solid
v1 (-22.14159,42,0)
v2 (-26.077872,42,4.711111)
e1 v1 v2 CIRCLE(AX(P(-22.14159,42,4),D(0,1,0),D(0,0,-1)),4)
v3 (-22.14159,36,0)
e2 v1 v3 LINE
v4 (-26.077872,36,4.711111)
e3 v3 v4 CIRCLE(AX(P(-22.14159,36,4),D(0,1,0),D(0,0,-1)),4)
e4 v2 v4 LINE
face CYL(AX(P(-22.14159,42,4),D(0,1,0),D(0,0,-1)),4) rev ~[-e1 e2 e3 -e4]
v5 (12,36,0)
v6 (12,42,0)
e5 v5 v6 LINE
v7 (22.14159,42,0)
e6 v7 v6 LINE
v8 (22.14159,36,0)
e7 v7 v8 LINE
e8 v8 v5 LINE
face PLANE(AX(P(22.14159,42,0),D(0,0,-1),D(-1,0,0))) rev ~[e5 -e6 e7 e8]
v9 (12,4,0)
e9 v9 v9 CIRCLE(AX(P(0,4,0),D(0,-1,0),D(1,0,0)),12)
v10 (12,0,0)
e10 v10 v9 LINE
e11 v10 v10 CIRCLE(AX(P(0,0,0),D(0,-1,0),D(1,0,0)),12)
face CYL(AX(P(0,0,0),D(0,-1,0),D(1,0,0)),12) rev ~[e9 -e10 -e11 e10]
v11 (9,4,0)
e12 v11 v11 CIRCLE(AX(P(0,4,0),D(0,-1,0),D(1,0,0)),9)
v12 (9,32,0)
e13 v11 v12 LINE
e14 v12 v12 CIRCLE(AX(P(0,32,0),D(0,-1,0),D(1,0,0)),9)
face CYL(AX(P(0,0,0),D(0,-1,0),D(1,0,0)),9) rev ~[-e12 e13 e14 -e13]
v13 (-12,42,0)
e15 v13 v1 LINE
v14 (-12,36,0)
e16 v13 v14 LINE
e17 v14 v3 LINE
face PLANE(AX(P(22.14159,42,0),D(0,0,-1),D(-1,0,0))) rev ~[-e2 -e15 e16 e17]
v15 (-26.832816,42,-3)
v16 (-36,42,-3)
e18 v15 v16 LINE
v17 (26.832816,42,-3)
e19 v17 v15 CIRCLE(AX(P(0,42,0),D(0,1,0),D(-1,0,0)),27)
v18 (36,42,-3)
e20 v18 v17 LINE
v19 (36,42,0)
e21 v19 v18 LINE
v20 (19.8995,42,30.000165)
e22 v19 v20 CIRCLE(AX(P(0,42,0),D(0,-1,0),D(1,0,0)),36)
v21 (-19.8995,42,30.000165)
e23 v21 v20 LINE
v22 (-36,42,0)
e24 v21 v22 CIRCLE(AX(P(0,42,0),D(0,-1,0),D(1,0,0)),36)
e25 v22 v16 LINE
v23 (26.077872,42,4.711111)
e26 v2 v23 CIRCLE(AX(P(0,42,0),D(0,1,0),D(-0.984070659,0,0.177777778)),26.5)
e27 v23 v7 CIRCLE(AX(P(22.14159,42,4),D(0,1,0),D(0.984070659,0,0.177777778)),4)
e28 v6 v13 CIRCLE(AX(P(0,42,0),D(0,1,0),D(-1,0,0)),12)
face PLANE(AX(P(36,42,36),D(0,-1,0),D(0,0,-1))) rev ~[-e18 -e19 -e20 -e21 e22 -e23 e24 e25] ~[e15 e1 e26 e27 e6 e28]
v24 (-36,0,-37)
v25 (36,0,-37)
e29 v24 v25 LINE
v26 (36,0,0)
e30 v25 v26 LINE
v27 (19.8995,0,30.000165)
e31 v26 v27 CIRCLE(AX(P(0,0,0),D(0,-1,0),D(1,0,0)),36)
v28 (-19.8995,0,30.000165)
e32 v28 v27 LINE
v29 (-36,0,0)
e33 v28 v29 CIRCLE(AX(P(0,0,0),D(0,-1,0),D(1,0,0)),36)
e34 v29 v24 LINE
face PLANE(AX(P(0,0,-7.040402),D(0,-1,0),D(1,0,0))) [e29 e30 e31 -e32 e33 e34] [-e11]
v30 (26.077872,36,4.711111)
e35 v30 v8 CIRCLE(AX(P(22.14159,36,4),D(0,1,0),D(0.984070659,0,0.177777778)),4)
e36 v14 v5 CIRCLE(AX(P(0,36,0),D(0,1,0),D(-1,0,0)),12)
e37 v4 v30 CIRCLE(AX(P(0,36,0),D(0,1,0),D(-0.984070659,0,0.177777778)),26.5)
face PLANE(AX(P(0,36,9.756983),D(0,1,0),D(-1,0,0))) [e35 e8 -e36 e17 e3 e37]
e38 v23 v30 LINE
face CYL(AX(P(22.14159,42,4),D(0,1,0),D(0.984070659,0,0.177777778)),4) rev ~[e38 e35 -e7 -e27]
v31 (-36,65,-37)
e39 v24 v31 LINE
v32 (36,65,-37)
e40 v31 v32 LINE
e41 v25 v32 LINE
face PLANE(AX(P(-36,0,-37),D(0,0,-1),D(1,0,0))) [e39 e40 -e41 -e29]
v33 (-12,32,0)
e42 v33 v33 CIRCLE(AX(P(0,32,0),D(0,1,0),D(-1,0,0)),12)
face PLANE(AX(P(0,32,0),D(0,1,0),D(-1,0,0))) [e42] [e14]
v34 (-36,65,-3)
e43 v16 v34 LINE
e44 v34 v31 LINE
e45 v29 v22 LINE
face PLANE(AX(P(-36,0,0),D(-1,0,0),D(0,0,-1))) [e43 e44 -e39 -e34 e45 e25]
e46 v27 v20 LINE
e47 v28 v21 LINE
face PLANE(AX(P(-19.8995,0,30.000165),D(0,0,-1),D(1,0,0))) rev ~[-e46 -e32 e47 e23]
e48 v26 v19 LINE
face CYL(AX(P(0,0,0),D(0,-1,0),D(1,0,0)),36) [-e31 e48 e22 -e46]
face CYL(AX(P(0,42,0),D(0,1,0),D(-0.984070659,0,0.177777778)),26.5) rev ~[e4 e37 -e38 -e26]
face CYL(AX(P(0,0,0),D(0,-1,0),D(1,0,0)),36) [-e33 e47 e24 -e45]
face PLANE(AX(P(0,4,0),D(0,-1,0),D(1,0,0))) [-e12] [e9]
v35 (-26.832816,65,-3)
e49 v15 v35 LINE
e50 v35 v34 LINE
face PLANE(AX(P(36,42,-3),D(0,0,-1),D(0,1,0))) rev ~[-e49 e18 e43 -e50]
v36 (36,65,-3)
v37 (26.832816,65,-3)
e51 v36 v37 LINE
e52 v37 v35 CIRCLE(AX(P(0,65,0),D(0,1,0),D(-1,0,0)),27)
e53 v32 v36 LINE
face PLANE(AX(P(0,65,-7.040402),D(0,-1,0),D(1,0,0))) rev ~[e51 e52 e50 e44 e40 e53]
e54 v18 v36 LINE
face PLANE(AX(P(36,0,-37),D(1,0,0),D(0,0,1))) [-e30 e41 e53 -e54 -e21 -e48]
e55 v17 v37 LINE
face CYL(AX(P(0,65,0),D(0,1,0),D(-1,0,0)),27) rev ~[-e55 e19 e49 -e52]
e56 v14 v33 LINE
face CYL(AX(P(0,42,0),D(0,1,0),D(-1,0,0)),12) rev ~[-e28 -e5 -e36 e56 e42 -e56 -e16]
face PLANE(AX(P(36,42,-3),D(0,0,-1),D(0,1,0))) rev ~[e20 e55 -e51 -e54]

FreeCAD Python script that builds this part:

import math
import FreeCAD as App
import Part
import Sketcher
from FreeCAD import Vector
Q = App.Units.Quantity


def add_polygon(sketch, points):
    """Adds a closed chain of lines whose ends are joined by coincident constraints."""
    first, n = sketch.GeometryCount, len(points)
    for a, b in zip(points, points[1:] + points[:1]):
        sketch.addGeometry(Part.LineSegment(App.Vector(*a, 0), App.Vector(*b, 0)), False)
    for i in range(n):
        sketch.addConstraint(Sketcher.Constraint("Coincident", first + i, 2, first + (i + 1) % n, 1))

doc = App.newDocument("Part")
body = doc.addObject("PartDesign::Body", "Body")

# Sketch on XZ plane
sketch1 = body.newObject("Sketcher::SketchObject", "Sketch")
sketch1.AttachmentSupport = (doc.getObject("XZ_Plane"), [""])
sketch1.MapMode = "FlatFace"
sketch1.addGeometry(Part.LineSegment(Vector(36, -37, 0), Vector(36, 0, 0)), False)
sketch1.addGeometry(Part.ArcOfCircle(Part.Circle(Vector(0, 0, 0), Vector(0, 0, 1), 36), math.radians(0), math.radians(180)), False)
sketch1.addGeometry(Part.LineSegment(Vector(-36, 0, 0), Vector(-36, -37, 0)), False)
sketch1.addGeometry(Part.LineSegment(Vector(-36, -37, 0), Vector(36, -37, 0)), False)
sketch1.addGeometry(Part.Circle(Vector(0, 0, 0), Vector(0, 0, 1), 9), False)
sketch1.addConstraint(Sketcher.Constraint("Tangent", 0, 2, 1, 1))
sketch1.addConstraint(Sketcher.Constraint("Tangent", 1, 2, 2, 1))
sketch1.addConstraint(Sketcher.Constraint("Coincident", 2, 2, 3, 1))
sketch1.addConstraint(Sketcher.Constraint("Coincident", 3, 2, 0, 1))
sketch1.addConstraint(Sketcher.Constraint("Vertical", 0))
sketch1.addConstraint(Sketcher.Constraint("Vertical", 2))
sketch1.addConstraint(Sketcher.Constraint("Horizontal", 3))
sketch1.addConstraint(Sketcher.Constraint("Coincident", 1, 3, -1, 1))
sketch1.addConstraint(Sketcher.Constraint("Coincident", 4, 3, -1, 1))
sketch1.addConstraint(Sketcher.Constraint("Diameter", 4, Q("18 mm")))
sketch1.addConstraint(Sketcher.Constraint("Radius", 1, Q("36 mm")))
sketch1.addConstraint(Sketcher.Constraint("DistanceY", 0, 1, 0, 2, Q("37 mm")))
pad1 = body.newObject("PartDesign::Pad", "Pad")
pad1.Profile = sketch1
pad1.Length = 65
pad1.Reversed = True

# Sketch on YZ plane
sketch2 = body.newObject("Sketcher::SketchObject", "Sketch001")
sketch2.AttachmentSupport = (doc.getObject("YZ_Plane"), [""])
sketch2.MapMode = "FlatFace"
sketch2.AttachmentOffset = App.Placement(Vector(0, 0, 36), App.Rotation())
add_polygon(sketch2, [(42, 36), (42, -3), (65, -3), (65, 36)])  # lines 0-3
sketch2.addConstraint(Sketcher.Constraint("Vertical", 0))
sketch2.addConstraint(Sketcher.Constraint("Horizontal", 1))
sketch2.addConstraint(Sketcher.Constraint("Vertical", 2))
sketch2.addConstraint(Sketcher.Constraint("Horizontal", 3))
sketch2.addConstraint(Sketcher.Constraint("DistanceX", 1, 1, 1, 2, Q("23 mm")))
sketch2.addConstraint(Sketcher.Constraint("DistanceY", 0, 2, 0, 1, Q("39 mm")))
sketch2.addConstraint(Sketcher.Constraint("DistanceX", -1, 1, 0, 2, Q("42 mm")))
sketch2.addConstraint(Sketcher.Constraint("DistanceY", 0, 2, -1, 1, Q("3 mm")))
pocket1 = body.newObject("PartDesign::Pocket", "Pocket")
pocket1.Profile = sketch2
pocket1.Length = 72

# Sketch on XZ plane
sketch3 = body.newObject("Sketcher::SketchObject", "Sketch002")
sketch3.AttachmentSupport = (doc.getObject("XZ_Plane"), [""])
sketch3.MapMode = "FlatFace"
sketch3.addGeometry(Part.Circle(Vector(0, 0, 0), Vector(0, 0, 1), 12), False)
sketch3.addConstraint(Sketcher.Constraint("Coincident", 0, 3, -1, 1))
sketch3.addConstraint(Sketcher.Constraint("Diameter", 0, Q("24 mm")))
pocket2 = body.newObject("PartDesign::Pocket", "Pocket001")
pocket2.Profile = sketch3
pocket2.Length = 4

# Sketch on XZ plane
sketch4 = body.newObject("Sketcher::SketchObject", "Sketch003")
sketch4.AttachmentSupport = (doc.getObject("XZ_Plane"), [""])
sketch4.MapMode = "FlatFace"
sketch4.AttachmentOffset = App.Placement(Vector(0, 0, -65), App.Rotation())
sketch4.addGeometry(Part.Circle(Vector(0, 0, 0), Vector(0, 0, 1), 27), False)
sketch4.addConstraint(Sketcher.Constraint("Coincident", 0, 3, -1, 1))
sketch4.addConstraint(Sketcher.Constraint("Diameter", 0, Q("54 mm")))
pocket3 = body.newObject("PartDesign::Pocket", "Pocket002")
pocket3.Profile = sketch4
pocket3.Length = 23
pocket3.Reversed = True

# Sketch on XZ plane
sketch5 = body.newObject("Sketcher::SketchObject", "Sketch004")
sketch5.AttachmentSupport = (doc.getObject("XZ_Plane"), [""])
sketch5.MapMode = "FlatFace"
sketch5.AttachmentOffset = App.Placement(Vector(0, 0, -42), App.Rotation())
sketch5.addGeometry(Part.Circle(Vector(0, 0, 0), Vector(0, 0, 1), 12), False)
sketch5.addConstraint(Sketcher.Constraint("Coincident", 0, 3, -1, 1))
sketch5.addConstraint(Sketcher.Constraint("Diameter", 0, Q("24 mm")))
pocket4 = body.newObject("PartDesign::Pocket", "Pocket003")
pocket4.Profile = sketch5
pocket4.Length = 10
pocket4.Reversed = True

# Sketch on XZ plane
sketch6 = body.newObject("Sketcher::SketchObject", "Sketch005")
sketch6.AttachmentSupport = (doc.getObject("XZ_Plane"), [""])
sketch6.MapMode = "FlatFace"
sketch6.AttachmentOffset = App.Placement(Vector(0, 0, -42), App.Rotation())
sketch6.addGeometry(Part.ArcOfCircle(Part.Circle(Vector(-22.1, 4, 0), Vector(0, 0, 1), 4), math.radians(170), math.radians(270)), False)
sketch6.addGeometry(Part.ArcOfCircle(Part.Circle(Vector(0, 0, 0), Vector(0, 0, 1), 26.5), math.radians(10), math.radians(170)), False)
sketch6.addGeometry(Part.ArcOfCircle(Part.Circle(Vector(22.1, 4, 0), Vector(0, 0, 1), 4), math.radians(-90), math.radians(10)), False)
sketch6.addGeometry(Part.LineSegment(Vector(22.1, 0, 0), Vector(-22.1, 0, 0)), False)
sketch6.addConstraint(Sketcher.Constraint("Tangent", 0, 1, 1, 2))
sketch6.addConstraint(Sketcher.Constraint("Tangent", 1, 1, 2, 2))
sketch6.addConstraint(Sketcher.Constraint("Tangent", 2, 1, 3, 1))
sketch6.addConstraint(Sketcher.Constraint("Tangent", 3, 2, 0, 2))
sketch6.addConstraint(Sketcher.Constraint("Horizontal", 3))
sketch6.addConstraint(Sketcher.Constraint("Coincident", 1, 3, -1, 1))
sketch6.addConstraint(Sketcher.Constraint("Equal", 0, 2))
sketch6.addConstraint(Sketcher.Constraint("PointOnObject", 2, 1, -1))
sketch6.addConstraint(Sketcher.Constraint("Radius", 0, Q("4 mm")))
sketch6.addConstraint(Sketcher.Constraint("Radius", 1, Q("26.5 mm")))
pocket5 = body.newObject("PartDesign::Pocket", "Pocket004")
pocket5.Profile = sketch6
pocket5.Length = 6
pocket5.Reversed = True

# Sketch on XZ plane
sketch7 = body.newObject("Sketcher::SketchObject", "Sketch006")
sketch7.AttachmentSupport = (doc.getObject("XZ_Plane"), [""])
sketch7.MapMode = "FlatFace"
sketch7.addGeometry(Part.ArcOfCircle(Part.Circle(Vector(0, 0, 0), Vector(0, 0, 1), 36), math.radians(56), math.radians(124)), False)
sketch7.addGeometry(Part.LineSegment(Vector(-20, 30, 0), Vector(20, 30, 0)), False)
sketch7.addConstraint(Sketcher.Constraint("Coincident", 0, 1, 1, 2))
sketch7.addConstraint(Sketcher.Constraint("Coincident", 1, 1, 0, 2))
sketch7.addConstraint(Sketcher.Constraint("Horizontal", 1))
sketch7.addConstraint(Sketcher.Constraint("Coincident", 0, 3, -1, 1))
sketch7.addConstraint(Sketcher.Constraint("Radius", 0, Q("36 mm")))
sketch7.addConstraint(Sketcher.Constraint("DistanceX", 1, 1, 1, 2, Q("39.799 mm")))
pocket6 = body.newObject("PartDesign::Pocket", "Pocket005")
pocket6.Profile = sketch7
pocket6.Length = 65

doc.recompute()
